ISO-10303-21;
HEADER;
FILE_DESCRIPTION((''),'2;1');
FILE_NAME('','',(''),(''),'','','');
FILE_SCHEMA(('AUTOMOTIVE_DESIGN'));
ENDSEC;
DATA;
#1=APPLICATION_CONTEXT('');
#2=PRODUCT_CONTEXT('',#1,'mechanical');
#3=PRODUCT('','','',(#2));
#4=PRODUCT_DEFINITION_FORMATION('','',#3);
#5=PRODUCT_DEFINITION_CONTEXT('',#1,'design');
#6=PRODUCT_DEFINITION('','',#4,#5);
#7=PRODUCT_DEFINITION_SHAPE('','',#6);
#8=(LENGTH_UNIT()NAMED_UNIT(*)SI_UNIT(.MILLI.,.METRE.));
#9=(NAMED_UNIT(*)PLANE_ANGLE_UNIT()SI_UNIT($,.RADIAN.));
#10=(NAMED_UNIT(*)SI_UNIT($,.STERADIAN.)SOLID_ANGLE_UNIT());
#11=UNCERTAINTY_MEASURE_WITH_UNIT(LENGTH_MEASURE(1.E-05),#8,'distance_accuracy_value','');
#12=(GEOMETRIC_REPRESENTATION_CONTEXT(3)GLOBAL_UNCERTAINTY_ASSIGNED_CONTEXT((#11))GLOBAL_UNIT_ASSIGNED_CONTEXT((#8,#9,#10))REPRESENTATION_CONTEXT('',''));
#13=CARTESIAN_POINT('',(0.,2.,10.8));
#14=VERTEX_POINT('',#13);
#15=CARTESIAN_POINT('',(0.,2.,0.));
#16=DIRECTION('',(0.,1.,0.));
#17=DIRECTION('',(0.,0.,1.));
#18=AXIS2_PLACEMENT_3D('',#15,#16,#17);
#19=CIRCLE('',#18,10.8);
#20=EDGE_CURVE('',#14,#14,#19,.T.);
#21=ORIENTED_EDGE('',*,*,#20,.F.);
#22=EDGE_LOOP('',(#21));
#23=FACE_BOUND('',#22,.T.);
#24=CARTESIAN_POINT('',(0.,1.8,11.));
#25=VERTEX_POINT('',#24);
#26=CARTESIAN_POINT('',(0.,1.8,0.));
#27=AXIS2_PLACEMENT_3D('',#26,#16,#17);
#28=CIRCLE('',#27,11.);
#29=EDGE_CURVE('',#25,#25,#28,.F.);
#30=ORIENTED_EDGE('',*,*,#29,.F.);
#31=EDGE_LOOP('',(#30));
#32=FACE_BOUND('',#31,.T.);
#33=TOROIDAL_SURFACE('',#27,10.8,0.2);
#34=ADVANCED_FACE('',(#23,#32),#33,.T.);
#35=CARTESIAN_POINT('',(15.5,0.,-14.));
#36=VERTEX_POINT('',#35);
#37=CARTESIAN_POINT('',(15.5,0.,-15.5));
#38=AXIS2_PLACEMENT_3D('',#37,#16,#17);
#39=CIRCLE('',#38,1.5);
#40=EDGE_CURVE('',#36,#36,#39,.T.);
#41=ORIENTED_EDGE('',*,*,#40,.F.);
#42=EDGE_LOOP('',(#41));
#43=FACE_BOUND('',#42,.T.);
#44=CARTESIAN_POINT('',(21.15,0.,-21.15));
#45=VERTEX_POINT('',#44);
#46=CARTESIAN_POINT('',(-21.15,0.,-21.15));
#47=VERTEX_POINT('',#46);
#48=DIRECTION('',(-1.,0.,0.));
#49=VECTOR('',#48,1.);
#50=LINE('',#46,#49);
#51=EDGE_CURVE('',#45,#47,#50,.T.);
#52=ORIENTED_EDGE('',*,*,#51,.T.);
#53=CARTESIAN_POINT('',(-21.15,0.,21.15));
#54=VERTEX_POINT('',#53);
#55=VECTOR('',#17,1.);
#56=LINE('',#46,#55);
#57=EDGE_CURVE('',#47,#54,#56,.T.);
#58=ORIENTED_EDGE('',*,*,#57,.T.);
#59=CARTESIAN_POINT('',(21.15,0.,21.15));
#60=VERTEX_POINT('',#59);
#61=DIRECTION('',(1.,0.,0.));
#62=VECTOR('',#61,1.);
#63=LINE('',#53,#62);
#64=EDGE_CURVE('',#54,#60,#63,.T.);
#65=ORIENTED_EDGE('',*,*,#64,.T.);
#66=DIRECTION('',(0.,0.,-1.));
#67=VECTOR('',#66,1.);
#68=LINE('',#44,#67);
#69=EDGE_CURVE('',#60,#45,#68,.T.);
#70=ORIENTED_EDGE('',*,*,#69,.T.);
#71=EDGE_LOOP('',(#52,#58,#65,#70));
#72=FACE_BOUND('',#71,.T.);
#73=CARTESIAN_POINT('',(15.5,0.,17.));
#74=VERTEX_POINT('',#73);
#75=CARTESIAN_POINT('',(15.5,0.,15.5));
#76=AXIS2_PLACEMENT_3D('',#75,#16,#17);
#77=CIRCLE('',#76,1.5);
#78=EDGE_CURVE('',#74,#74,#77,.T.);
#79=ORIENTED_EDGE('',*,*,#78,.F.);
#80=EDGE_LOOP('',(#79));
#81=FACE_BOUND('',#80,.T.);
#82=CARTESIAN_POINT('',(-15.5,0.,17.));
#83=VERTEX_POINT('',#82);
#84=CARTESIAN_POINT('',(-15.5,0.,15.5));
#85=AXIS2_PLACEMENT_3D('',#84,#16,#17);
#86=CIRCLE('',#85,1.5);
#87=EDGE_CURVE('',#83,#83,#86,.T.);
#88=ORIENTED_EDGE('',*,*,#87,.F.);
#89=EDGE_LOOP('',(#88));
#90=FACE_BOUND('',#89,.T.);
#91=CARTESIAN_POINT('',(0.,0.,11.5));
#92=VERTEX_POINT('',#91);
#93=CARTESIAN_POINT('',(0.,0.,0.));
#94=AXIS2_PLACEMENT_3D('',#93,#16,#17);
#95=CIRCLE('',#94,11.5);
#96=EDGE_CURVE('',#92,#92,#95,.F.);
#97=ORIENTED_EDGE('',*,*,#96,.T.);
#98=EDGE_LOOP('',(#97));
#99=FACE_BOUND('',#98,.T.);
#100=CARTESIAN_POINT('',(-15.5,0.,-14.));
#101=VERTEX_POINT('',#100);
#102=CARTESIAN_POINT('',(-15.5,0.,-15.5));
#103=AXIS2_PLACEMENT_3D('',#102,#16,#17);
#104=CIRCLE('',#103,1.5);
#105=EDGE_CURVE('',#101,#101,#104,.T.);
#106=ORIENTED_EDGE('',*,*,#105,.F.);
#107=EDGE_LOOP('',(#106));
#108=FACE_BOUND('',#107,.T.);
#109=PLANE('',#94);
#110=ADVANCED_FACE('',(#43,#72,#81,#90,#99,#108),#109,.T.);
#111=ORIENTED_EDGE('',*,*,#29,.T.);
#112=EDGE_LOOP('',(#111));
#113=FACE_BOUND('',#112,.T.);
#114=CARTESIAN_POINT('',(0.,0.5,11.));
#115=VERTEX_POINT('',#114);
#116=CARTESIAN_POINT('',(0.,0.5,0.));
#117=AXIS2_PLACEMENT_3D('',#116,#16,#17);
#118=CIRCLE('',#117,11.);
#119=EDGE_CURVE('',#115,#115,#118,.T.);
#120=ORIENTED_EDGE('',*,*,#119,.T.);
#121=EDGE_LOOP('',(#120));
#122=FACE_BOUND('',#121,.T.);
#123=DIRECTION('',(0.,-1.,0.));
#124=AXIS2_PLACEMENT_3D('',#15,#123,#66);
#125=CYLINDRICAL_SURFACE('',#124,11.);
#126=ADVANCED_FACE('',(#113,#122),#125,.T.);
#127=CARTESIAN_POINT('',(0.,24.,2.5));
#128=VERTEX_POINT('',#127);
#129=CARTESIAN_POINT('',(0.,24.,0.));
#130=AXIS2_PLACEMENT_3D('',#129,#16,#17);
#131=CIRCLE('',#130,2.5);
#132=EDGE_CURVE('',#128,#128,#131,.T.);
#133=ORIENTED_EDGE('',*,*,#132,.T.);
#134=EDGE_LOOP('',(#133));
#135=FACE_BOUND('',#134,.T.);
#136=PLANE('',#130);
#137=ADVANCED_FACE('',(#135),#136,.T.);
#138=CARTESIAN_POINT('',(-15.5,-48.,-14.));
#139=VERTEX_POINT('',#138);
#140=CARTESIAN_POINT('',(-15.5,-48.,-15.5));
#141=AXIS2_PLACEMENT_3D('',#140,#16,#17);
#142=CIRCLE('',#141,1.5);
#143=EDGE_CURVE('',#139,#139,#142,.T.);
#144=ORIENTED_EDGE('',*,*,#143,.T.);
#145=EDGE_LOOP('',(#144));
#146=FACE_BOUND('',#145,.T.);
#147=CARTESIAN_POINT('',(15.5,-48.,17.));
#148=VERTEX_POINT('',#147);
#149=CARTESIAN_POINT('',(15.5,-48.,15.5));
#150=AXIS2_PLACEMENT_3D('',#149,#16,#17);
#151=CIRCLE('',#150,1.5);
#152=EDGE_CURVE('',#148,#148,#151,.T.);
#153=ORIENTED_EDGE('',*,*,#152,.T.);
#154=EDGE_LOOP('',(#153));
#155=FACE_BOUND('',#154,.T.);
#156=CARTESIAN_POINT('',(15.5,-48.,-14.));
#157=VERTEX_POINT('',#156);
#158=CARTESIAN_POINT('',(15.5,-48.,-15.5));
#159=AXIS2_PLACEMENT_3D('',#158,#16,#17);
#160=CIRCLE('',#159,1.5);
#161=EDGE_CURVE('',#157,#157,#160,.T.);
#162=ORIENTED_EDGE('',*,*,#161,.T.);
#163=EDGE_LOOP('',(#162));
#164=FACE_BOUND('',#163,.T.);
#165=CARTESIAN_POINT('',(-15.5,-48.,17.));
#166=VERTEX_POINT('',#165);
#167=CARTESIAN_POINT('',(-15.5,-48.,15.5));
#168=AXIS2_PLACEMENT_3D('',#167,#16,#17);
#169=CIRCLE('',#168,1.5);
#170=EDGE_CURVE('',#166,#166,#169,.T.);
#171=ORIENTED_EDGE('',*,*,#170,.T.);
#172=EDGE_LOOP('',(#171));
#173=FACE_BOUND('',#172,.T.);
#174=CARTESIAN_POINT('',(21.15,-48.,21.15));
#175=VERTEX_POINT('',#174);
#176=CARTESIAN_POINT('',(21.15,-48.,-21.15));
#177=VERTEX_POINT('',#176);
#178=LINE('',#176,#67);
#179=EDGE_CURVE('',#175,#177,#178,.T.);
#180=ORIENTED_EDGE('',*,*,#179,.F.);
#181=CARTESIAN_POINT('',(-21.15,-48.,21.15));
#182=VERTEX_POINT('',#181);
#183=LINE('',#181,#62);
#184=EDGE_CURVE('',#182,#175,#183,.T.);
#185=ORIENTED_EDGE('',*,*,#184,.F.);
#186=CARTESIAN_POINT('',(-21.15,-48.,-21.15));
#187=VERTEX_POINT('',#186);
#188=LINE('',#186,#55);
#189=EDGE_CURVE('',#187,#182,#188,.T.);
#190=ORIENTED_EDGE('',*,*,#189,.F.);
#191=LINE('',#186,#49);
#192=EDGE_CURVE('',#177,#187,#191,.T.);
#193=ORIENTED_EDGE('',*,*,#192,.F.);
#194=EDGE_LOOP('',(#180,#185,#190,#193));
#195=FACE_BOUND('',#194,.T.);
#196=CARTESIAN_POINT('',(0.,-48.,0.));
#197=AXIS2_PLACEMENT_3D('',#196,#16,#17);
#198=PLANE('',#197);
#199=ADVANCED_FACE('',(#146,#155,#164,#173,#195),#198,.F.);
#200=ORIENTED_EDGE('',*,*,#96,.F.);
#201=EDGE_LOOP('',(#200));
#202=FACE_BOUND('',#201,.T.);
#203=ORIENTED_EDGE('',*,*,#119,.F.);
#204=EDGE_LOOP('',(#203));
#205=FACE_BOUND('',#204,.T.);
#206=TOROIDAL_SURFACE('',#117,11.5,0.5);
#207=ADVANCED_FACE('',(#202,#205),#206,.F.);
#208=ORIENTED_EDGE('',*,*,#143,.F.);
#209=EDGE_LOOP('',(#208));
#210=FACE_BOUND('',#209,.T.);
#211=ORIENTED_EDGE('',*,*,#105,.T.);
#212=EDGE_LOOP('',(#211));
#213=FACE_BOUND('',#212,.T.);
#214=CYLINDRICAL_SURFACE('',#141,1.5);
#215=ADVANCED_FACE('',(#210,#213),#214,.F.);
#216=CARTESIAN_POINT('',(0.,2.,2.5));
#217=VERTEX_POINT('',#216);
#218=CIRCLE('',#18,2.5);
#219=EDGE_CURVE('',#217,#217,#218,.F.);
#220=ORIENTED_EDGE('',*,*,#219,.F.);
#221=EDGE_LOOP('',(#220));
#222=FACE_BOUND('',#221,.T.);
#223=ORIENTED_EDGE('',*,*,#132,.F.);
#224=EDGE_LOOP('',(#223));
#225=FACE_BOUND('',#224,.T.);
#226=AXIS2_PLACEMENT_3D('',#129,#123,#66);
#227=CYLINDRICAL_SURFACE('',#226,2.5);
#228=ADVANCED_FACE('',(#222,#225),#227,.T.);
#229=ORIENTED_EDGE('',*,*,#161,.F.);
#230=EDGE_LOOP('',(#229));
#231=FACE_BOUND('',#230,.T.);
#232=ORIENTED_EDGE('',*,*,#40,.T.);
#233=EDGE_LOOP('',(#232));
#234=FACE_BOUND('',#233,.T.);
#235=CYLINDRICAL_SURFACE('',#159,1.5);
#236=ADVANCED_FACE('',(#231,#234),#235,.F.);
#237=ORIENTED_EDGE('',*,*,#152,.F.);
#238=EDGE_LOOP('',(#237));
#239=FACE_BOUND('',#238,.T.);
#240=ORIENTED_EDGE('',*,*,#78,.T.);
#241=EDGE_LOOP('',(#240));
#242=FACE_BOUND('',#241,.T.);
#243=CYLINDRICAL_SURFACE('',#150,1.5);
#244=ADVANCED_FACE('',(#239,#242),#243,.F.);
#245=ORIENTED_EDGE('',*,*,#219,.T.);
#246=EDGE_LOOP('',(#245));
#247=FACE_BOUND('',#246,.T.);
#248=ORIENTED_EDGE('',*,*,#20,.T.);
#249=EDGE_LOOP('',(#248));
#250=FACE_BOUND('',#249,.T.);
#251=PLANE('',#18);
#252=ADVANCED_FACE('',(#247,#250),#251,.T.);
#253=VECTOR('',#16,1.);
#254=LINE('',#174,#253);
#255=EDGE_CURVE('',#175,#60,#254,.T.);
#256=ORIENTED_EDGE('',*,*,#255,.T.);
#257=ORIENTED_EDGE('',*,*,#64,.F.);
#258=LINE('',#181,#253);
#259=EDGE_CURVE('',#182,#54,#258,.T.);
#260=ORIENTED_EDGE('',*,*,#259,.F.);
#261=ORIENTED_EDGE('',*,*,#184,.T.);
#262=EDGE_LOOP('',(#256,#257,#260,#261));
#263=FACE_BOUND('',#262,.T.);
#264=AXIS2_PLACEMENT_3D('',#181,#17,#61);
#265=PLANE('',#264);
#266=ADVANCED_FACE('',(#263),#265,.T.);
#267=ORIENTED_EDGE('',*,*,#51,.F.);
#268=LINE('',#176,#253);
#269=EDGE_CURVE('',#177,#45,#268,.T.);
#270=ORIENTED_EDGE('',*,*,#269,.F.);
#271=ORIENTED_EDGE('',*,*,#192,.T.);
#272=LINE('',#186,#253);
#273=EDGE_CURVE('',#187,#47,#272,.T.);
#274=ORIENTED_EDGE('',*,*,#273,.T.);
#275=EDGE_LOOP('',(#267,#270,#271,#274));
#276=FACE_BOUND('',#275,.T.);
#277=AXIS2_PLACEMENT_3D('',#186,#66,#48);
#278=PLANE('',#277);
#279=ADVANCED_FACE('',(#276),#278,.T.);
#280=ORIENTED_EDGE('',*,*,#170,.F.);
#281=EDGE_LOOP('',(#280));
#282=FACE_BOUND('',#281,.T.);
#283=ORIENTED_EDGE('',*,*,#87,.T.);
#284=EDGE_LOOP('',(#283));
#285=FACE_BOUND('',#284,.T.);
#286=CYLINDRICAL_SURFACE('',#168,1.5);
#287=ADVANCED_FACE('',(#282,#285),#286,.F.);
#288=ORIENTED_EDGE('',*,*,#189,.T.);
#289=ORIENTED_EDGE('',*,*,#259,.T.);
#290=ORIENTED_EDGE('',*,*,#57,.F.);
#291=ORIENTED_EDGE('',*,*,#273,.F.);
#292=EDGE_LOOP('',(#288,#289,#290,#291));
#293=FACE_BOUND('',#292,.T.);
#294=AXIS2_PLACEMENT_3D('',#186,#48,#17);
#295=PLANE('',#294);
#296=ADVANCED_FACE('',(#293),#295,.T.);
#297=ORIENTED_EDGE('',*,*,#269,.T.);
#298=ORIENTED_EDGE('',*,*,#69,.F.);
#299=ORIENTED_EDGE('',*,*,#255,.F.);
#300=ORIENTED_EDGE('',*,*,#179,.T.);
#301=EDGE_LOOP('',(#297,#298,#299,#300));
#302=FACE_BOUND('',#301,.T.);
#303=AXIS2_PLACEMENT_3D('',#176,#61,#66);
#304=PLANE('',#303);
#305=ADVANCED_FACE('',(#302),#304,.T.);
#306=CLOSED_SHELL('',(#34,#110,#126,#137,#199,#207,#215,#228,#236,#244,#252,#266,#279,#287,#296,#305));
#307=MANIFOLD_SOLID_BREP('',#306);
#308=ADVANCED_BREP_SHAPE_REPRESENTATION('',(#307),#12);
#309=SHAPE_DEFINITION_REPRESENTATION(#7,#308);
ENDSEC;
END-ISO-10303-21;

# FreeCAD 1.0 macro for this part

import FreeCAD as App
import Part
import Sketcher
Q = App.Units.Quantity


def edges_at(feature, points):
    """Names of the edges that pass closest to the given points."""
    edges = feature.Shape.Edges
    near = lambda p: min(range(len(edges)), key=lambda i: edges[i].distToShape(Part.Vertex(*p))[0])
    return sorted({f"Edge{near(p) + 1}" for p in points})


def add_polygon(sketch, points):
    """Adds a closed chain of lines whose ends are joined by coincident constraints."""
    first, n = sketch.GeometryCount, len(points)
    for a, b in zip(points, points[1:] + points[:1]):
        sketch.addGeometry(Part.LineSegment(App.Vector(*a, 0), App.Vector(*b, 0)), False)
    for i in range(n):
        sketch.addConstraint(Sketcher.Constraint("Coincident", first + i, 2, first + (i + 1) % n, 1))

doc = App.newDocument("Part")
body = doc.addObject("PartDesign::Body", "Body")

# Sketch on XZ plane
sketch1 = body.newObject("Sketcher::SketchObject", "Sketch")
sketch1.AttachmentSupport = (doc.getObject("XZ_Plane"), [""])
sketch1.MapMode = "FlatFace"
add_polygon(sketch1, [(-21.1, -21.1), (-21.1, 21.1), (21.1, 21.1), (21.1, -21.1)])  # lines 0-3
sketch1.addGeometry(Part.Circle(App.Vector(-15.5, 15.5, 0), App.Vector(0, 0, 1), 1.5), False)  # 4
sketch1.addGeometry(Part.Circle(App.Vector(15.5, 15.5, 0), App.Vector(0, 0, 1), 1.5), False)  # 5
sketch1.addGeometry(Part.Circle(App.Vector(-15.5, -15.5, 0), App.Vector(0, 0, 1), 1.5), False)  # 6
sketch1.addGeometry(Part.Circle(App.Vector(15.5, -15.5, 0), App.Vector(0, 0, 1), 1.5), False)  # 7
sketch1.addConstraint([
    Sketcher.Constraint("Vertical", 0),
    Sketcher.Constraint("Horizontal", 1),
    Sketcher.Constraint("Vertical", 2),
    Sketcher.Constraint("Horizontal", 3),
    Sketcher.Constraint("Equal", 4, 5),
    Sketcher.Constraint("Equal", 5, 6),
    Sketcher.Constraint("Equal", 6, 7),
    Sketcher.Constraint("Symmetric", 5, 3, 6, 3, -1, 1),
    Sketcher.Constraint("Symmetric", 4, 3, 7, 3, -1, 1),
    Sketcher.Constraint("Symmetric", 0, 2, 2, 2, -1, 1),
    Sketcher.Constraint("Symmetric", 4, 3, 5, 3, -2),
    Sketcher.Constraint("Equal", 3, 0),
    Sketcher.Constraint("Diameter", 4, Q("3 mm")),
    Sketcher.Constraint("DistanceX", 1, 1, 1, 2, Q("42.3 mm")),
    Sketcher.Constraint("DistanceX", 4, 3, 5, 3, Q("31 mm")),
    Sketcher.Constraint("DistanceY", 6, 3, 4, 3, Q("31 mm")),
])
pad1 = body.newObject("PartDesign::Pad", "Pad")
pad1.Profile = sketch1
pad1.Length = 48

# Sketch on XZ plane
sketch2 = body.newObject("Sketcher::SketchObject", "Sketch001")
sketch2.AttachmentSupport = (doc.getObject("XZ_Plane"), [""])
sketch2.MapMode = "FlatFace"
sketch2.addGeometry(Part.Circle(App.Vector(0, 0, 0), App.Vector(0, 0, 1), 11), False)
sketch2.addConstraint([
    Sketcher.Constraint("Coincident", 0, 3, -1, 1),
    Sketcher.Constraint("Diameter", 0, Q("22 mm")),
])
pad2 = body.newObject("PartDesign::Pad", "Pad001")
pad2.Profile = sketch2
pad2.Length = 2
pad2.Reversed = True

# Sketch on XZ plane
sketch3 = body.newObject("Sketcher::SketchObject", "Sketch002")
sketch3.AttachmentSupport = (doc.getObject("XZ_Plane"), [""])
sketch3.MapMode = "FlatFace"
sketch3.addGeometry(Part.Circle(App.Vector(0, 0, 0), App.Vector(0, 0, 1), 2.5), False)
sketch3.addConstraint([
    Sketcher.Constraint("Coincident", 0, 3, -1, 1),
    Sketcher.Constraint("Diameter", 0, Q("5 mm")),
])
pad3 = body.newObject("PartDesign::Pad", "Pad002")
pad3.Profile = sketch3
pad3.Length = 24
pad3.Reversed = True
doc.recompute()

fillet = body.newObject("PartDesign::Fillet", "Fillet")
fillet.Base = (pad3, edges_at(pad3, [(0, 0, -11)]))
fillet.Radius = 0.5
doc.recompute()

fillet2 = body.newObject("PartDesign::Fillet", "Fillet001")
fillet2.Base = (fillet, edges_at(fillet, [(0, 2, -11)]))
fillet2.Radius = 0.2

doc.recompute()
